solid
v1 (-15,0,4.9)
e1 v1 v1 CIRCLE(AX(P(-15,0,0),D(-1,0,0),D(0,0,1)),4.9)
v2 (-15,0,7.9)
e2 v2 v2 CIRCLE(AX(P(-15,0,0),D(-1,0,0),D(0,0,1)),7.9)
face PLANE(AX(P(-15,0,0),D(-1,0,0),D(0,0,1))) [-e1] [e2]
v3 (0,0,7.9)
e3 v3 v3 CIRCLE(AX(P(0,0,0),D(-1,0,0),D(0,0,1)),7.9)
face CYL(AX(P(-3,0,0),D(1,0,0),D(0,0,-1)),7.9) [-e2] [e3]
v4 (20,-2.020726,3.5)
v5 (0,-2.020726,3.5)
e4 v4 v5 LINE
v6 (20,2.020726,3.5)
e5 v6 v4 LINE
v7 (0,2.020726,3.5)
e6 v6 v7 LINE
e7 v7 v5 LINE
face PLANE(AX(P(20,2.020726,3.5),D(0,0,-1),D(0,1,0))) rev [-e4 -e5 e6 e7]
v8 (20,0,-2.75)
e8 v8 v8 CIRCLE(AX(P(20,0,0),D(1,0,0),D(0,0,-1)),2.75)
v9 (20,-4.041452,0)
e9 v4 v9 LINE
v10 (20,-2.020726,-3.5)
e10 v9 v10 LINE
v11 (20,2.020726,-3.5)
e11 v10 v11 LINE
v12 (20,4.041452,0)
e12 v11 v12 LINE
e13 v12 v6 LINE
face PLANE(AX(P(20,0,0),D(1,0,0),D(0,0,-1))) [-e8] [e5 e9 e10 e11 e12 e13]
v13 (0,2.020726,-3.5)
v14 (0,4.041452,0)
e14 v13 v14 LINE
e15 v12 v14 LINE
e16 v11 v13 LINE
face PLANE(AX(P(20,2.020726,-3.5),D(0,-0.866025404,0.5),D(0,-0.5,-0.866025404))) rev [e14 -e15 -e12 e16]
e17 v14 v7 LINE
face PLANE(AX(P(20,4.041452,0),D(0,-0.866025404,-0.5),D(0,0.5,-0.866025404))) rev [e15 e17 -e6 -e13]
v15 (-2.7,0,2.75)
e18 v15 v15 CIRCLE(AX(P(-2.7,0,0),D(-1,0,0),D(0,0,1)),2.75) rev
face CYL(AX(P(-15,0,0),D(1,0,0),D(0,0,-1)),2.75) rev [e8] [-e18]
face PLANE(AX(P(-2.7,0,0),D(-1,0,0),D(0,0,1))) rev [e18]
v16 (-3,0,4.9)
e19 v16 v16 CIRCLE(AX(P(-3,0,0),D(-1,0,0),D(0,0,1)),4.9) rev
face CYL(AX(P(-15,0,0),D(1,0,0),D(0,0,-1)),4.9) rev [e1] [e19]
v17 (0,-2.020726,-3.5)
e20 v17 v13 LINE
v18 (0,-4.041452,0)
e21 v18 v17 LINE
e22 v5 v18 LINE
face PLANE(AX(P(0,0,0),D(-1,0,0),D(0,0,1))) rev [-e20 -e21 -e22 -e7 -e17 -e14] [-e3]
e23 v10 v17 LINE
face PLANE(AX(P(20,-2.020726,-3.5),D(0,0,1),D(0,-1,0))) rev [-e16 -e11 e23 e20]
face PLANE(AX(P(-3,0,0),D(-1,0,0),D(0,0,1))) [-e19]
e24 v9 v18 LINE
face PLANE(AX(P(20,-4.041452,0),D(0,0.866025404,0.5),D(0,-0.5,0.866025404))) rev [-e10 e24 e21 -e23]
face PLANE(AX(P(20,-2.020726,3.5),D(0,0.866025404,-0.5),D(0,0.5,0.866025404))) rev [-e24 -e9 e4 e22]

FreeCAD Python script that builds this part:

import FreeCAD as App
import Part
import Sketcher
Q = App.Units.Quantity


def add_polygon(sketch, points):
    """Adds a closed chain of lines whose ends are joined by coincident constraints."""
    first, n = sketch.GeometryCount, len(points)
    for a, b in zip(points, points[1:] + points[:1]):
        sketch.addGeometry(Part.LineSegment(App.Vector(*a, 0), App.Vector(*b, 0)), False)
    for i in range(n):
        sketch.addConstraint(Sketcher.Constraint("Coincident", first + i, 2, first + (i + 1) % n, 1))

doc = App.newDocument("Part")
body = doc.addObject("PartDesign::Body", "Body")

sketch1 = body.newObject("Sketcher::SketchObject", "Sketch")
sketch1.AttachmentSupport = (doc.getObject("YZ_Plane"), [""])
sketch1.MapMode = "FlatFace"
add_polygon(sketch1, [(-2, 3.5), (-4, 0), (-2, -3.5), (2, -3.5), (4, 0), (2, 3.5)])
sketch1.addConstraint([
    Sketcher.Constraint("Horizontal", 2),
    Sketcher.Constraint("Horizontal", 5),
    Sketcher.Constraint("Symmetric", 0, 2, 3, 2, -1, 1),
    Sketcher.Constraint("Symmetric", 1, 2, 4, 2, -1, 1),
    Sketcher.Constraint("PointOnObject", 0, 2, -1),
    Sketcher.Constraint("Parallel", 0, 3),
    Sketcher.Constraint("Vertical", 2, 2, 4, 2),
    Sketcher.Constraint("Angle", 0, Q("-120 deg")),
    Sketcher.Constraint("DistanceY", 2, 2, 4, 2, Q("7 mm")),
    Sketcher.Constraint("DistanceX", 2, 1, 2, 2, Q("4.041452 mm")),
])
pad1 = body.newObject("PartDesign::Pad", "Pad")
pad1.Profile = sketch1
pad1.Length = 20

sketch2 = body.newObject("Sketcher::SketchObject", "Sketch001")
sketch2.AttachmentSupport = (doc.getObject("YZ_Plane"), [""])
sketch2.MapMode = "FlatFace"
sketch2.addGeometry(Part.Circle(App.Vector(0, 0, 0), App.Vector(0, 0, 1), 8), False)
sketch2.addConstraint([
    Sketcher.Constraint("Coincident", 0, 3, -1, 1),
    Sketcher.Constraint("Diameter", 0, Q("15.8 mm")),
])
pad2 = body.newObject("PartDesign::Pad", "Pad001")
pad2.Profile = sketch2
pad2.Length = 3
pad2.Reversed = True

sketch3 = body.newObject("Sketcher::SketchObject", "Sketch002")
sketch3.AttachmentSupport = (doc.getObject("YZ_Plane"), [""])
sketch3.MapMode = "FlatFace"
sketch3.AttachmentOffset = App.Placement(App.Vector(0, 0, -3), App.Rotation())
sketch3.addGeometry([
    Part.Circle(App.Vector(0, 0, 0), App.Vector(0, 0, 1), 7.9),
    Part.Circle(App.Vector(0, 0, 0), App.Vector(0, 0, 1), 4.9),
], False)
sketch3.addConstraint([
    Sketcher.Constraint("Coincident", 0, 3, -1, 1),
    Sketcher.Constraint("Coincident", 1, 3, -1, 1),
    Sketcher.Constraint("Diameter", 0, Q("15.8 mm")),
    Sketcher.Constraint("Diameter", 1, Q("9.8 mm")),
])
pad3 = body.newObject("PartDesign::Pad", "Pad002")
pad3.Profile = sketch3
pad3.Length = 12
pad3.Reversed = True

sketch4 = body.newObject("Sketcher::SketchObject", "Sketch003")
sketch4.AttachmentSupport = (doc.getObject("YZ_Plane"), [""])
sketch4.MapMode = "FlatFace"
sketch4.AttachmentOffset = App.Placement(App.Vector(0, 0, 20), App.Rotation())
sketch4.addGeometry(Part.Circle(App.Vector(0, 0, 0), App.Vector(0, 0, 1), 2.8), False)
sketch4.addConstraint([
    Sketcher.Constraint("Coincident", 0, 3, -1, 1),
    Sketcher.Constraint("Diameter", 0, Q("5.5 mm")),
])
pocket1 = body.newObject("PartDesign::Pocket", "Pocket")
pocket1.Profile = sketch4
pocket1.Type = "ThroughAll"

sketch5 = body.newObject("Sketcher::SketchObject", "Sketch004")
sketch5.AttachmentSupport = (doc.getObject("YZ_Plane"), [""])
sketch5.MapMode = "FlatFace"
sketch5.AttachmentOffset = App.Placement(App.Vector(0, 0, -3), App.Rotation())
sketch5.addGeometry(Part.Circle(App.Vector(0, 0, 0), App.Vector(0, 0, 1), 2.8), False)
sketch5.addConstraint([
    Sketcher.Constraint("Coincident", 0, 3, -1, 1),
    Sketcher.Constraint("Diameter", 0, Q("5.5 mm")),
])
pad4 = body.newObject("PartDesign::Pad", "Pad003")
pad4.Profile = sketch5
pad4.Length = 0.3

doc.recompute()
